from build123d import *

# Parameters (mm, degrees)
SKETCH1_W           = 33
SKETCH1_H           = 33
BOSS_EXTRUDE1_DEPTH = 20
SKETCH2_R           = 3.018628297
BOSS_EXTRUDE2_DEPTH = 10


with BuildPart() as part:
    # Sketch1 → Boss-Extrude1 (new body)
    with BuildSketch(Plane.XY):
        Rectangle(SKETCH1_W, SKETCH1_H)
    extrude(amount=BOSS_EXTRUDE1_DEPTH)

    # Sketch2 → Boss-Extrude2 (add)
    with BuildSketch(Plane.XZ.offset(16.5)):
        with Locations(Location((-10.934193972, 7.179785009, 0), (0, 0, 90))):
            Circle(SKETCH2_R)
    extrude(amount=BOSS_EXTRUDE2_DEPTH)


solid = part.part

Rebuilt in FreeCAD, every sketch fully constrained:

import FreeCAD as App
import Part
import Sketcher
from FreeCAD import Vector


def add_polygon(sketch, points):
    """Adds a closed chain of lines whose ends are joined by coincident constraints."""
    first, n = sketch.GeometryCount, len(points)
    for a, b in zip(points, points[1:] + points[:1]):
        sketch.addGeometry(Part.LineSegment(App.Vector(*a, 0), App.Vector(*b, 0)), False)
    for i in range(n):
        sketch.addConstraint(Sketcher.Constraint("Coincident", first + i, 2, first + (i + 1) % n, 1))

doc = App.newDocument("Part")
body = doc.addObject("PartDesign::Body", "Body")

# Sketch on XY plane
sketch1 = body.newObject("Sketcher::SketchObject", "Sketch")
sketch1.AttachmentSupport = (doc.getObject("XY_Plane"), [""])
sketch1.MapMode = "FlatFace"
add_polygon(sketch1, [(-16, 16), (-16, -16), (16, -16), (16, 16)])  # lines 0-3
sketch1.addConstraint([
    Sketcher.Constraint("Vertical", 0),
    Sketcher.Constraint("Horizontal", 1),
    Sketcher.Constraint("Vertical", 2),
    Sketcher.Constraint("Horizontal", 3),
    Sketcher.Constraint("Symmetric", 0, 2, 2, 2, -1, 1),
    Sketcher.Constraint("Equal", 3, 0),
    Sketcher.Constraint("DistanceX", 1, 1, 1, 2, 33.0),
])
pad1 = body.newObject("PartDesign::Pad", "Pad")
pad1.Profile = sketch1
pad1.Length = 20

# Sketch on XZ plane
sketch2 = body.newObject("Sketcher::SketchObject", "Sketch001")
sketch2.AttachmentSupport = (doc.getObject("XZ_Plane"), [""])
sketch2.MapMode = "FlatFace"
sketch2.AttachmentOffset = App.Placement(Vector(0, 0, 16.5), App.Rotation())
sketch2.addGeometry(Part.Circle(Vector(-10.9, 7.2, 0), Vector(0, 0, 1), 3), False)
sketch2.addConstraint([
    Sketcher.Constraint("Diameter", 0, 6.037257),
    Sketcher.Constraint("DistanceX", 0, 3, -1, 1, 10.934194),
    Sketcher.Constraint("DistanceY", -1, 1, 0, 3, 7.179785),
])
pad2 = body.newObject("PartDesign::Pad", "Pad001")
pad2.Profile = sketch2
pad2.Length = 10

doc.recompute()
